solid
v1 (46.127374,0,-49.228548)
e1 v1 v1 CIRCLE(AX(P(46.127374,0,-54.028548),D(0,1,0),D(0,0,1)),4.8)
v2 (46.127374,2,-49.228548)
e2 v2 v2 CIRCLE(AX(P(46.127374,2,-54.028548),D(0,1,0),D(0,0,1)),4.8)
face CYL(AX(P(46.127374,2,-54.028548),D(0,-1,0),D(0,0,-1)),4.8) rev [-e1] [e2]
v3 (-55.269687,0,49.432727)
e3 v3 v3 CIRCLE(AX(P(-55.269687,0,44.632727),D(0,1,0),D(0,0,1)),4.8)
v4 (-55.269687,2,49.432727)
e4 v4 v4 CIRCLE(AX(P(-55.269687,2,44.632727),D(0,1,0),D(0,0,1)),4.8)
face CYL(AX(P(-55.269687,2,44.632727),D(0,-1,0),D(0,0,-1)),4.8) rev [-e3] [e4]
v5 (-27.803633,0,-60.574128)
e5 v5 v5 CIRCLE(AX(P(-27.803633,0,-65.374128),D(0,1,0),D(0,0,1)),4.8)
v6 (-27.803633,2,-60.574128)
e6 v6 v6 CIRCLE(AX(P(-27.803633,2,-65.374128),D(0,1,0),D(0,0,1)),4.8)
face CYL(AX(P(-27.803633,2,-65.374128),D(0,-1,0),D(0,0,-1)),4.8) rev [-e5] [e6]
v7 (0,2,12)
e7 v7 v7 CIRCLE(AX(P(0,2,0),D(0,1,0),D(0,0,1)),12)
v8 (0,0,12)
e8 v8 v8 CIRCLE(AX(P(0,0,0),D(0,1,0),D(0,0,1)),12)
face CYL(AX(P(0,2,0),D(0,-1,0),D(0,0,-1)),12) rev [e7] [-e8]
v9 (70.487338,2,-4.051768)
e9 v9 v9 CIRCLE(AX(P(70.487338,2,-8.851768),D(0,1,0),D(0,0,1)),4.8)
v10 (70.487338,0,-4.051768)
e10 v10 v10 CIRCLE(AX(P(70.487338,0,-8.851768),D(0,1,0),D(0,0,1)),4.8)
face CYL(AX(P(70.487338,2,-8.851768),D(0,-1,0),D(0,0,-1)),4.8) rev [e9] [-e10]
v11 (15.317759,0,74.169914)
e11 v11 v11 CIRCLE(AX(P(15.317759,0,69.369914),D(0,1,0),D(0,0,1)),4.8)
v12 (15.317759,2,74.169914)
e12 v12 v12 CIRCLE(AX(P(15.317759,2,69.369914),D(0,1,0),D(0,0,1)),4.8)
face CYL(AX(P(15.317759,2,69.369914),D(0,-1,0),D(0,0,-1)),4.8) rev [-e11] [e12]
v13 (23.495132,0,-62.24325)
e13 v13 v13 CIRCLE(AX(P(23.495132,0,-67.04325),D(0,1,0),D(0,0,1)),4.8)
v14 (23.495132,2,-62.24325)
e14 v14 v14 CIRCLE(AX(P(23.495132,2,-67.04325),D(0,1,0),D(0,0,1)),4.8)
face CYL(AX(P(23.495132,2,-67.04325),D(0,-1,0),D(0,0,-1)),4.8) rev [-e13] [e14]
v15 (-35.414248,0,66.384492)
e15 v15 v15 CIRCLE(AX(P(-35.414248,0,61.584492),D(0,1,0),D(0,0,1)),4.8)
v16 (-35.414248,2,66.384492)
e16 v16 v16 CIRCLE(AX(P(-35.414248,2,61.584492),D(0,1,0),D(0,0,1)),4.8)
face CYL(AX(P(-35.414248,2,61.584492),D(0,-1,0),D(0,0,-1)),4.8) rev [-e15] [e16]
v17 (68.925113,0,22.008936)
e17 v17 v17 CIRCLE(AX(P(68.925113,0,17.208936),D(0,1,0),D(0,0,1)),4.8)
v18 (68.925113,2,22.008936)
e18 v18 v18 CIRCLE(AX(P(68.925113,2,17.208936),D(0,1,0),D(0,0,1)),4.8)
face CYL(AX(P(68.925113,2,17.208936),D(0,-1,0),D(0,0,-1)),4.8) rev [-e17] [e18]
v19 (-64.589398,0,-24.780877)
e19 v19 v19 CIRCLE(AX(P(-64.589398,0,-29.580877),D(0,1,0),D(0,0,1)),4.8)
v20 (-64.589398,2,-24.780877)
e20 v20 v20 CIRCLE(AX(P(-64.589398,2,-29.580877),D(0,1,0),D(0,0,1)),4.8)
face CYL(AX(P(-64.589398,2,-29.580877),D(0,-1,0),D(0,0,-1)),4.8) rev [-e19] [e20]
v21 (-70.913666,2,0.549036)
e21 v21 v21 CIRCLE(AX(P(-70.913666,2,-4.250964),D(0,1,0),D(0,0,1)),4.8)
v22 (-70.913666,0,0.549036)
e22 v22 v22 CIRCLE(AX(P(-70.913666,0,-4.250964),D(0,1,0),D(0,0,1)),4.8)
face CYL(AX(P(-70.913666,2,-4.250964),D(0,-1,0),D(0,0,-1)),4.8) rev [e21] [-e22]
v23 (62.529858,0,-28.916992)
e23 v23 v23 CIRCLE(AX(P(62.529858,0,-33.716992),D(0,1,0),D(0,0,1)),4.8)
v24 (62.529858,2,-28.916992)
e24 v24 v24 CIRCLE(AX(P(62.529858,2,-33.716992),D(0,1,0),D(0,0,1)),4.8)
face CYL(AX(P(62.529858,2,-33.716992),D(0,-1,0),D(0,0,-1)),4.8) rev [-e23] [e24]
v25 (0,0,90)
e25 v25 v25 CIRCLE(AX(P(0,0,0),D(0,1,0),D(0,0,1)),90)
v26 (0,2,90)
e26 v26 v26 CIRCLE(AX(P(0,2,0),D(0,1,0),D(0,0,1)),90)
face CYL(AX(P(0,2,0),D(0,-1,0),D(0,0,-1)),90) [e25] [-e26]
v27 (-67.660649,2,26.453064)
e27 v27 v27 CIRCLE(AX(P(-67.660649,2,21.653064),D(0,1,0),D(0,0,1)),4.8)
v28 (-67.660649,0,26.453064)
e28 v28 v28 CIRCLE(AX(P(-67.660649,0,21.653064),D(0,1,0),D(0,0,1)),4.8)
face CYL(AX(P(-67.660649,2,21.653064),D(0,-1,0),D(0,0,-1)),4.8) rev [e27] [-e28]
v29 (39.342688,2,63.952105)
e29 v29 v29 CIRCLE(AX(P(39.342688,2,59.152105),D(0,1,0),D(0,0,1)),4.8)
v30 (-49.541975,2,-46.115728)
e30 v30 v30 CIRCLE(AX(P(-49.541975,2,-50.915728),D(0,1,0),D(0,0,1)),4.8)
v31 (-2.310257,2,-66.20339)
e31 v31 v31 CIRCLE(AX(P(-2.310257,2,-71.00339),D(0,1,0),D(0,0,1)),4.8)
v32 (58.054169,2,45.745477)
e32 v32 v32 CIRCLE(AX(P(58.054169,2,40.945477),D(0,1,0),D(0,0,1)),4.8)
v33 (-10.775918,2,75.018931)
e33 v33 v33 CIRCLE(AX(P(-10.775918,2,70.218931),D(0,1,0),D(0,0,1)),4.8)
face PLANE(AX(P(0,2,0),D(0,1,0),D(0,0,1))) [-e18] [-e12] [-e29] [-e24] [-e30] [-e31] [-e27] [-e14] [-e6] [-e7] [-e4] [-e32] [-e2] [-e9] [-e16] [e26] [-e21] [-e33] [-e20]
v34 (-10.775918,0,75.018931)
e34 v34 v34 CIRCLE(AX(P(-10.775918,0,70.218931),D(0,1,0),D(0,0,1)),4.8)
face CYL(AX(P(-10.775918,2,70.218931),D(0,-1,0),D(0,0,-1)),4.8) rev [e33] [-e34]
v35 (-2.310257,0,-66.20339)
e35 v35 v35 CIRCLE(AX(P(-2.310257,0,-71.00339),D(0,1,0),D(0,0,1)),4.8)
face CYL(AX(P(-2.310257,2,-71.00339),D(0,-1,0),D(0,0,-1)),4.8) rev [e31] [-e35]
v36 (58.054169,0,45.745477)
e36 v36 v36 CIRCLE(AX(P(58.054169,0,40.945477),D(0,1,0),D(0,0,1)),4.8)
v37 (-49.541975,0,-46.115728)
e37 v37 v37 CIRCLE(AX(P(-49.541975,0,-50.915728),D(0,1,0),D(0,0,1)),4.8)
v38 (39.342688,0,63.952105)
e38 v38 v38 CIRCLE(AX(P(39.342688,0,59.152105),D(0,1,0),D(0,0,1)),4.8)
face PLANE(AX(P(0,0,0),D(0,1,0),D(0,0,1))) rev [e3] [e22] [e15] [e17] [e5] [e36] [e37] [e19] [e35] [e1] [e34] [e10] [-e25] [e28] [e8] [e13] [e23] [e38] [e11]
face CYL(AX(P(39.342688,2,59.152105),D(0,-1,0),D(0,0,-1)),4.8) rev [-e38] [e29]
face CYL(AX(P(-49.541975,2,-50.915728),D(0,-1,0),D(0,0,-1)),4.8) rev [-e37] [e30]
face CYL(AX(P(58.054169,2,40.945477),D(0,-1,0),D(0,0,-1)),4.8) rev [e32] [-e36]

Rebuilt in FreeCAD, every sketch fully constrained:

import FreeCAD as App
import Part
import Sketcher
from FreeCAD import Vector
Q = App.Units.Quantity

doc = App.newDocument("Part")
body = doc.addObject("PartDesign::Body", "Body")

# Sketch on XZ plane
sketch1 = body.newObject("Sketcher::SketchObject", "Sketch")
sketch1.AttachmentSupport = (doc.getObject("XZ_Plane"), [""])
sketch1.MapMode = "FlatFace"
sketch1.addGeometry(Part.Circle(Vector(0, 0, 0), Vector(0, 0, 1), 90), False)
sketch1.addConstraint(Sketcher.Constraint("Coincident", 0, 3, -1, 1))
sketch1.addConstraint(Sketcher.Constraint("Diameter", 0, Q("180 mm")))
pad1 = body.newObject("PartDesign::Pad", "Pad")
pad1.Profile = sketch1
pad1.Length = 2
pad1.Reversed = True

# Sketch on XZ plane
sketch2 = body.newObject("Sketcher::SketchObject", "Sketch001")
sketch2.AttachmentSupport = (doc.getObject("XZ_Plane"), [""])
sketch2.MapMode = "FlatFace"
sketch2.addGeometry(Part.Circle(Vector(68.9, 17.2, 0), Vector(0, 0, 1), 4.8), False)
sketch2.addGeometry(Part.Circle(Vector(58.1, 40.9, 0), Vector(0, 0, 1), 4.8), False)
sketch2.addGeometry(Part.Circle(Vector(39.3, 59.2, 0), Vector(0, 0, 1), 4.8), False)
sketch2.addGeometry(Part.Circle(Vector(15.3, 69.4, 0), Vector(0, 0, 1), 4.8), False)
sketch2.addGeometry(Part.Circle(Vector(-10.8, 70.2, 0), Vector(0, 0, 1), 4.8), False)
sketch2.addGeometry(Part.Circle(Vector(-35.4, 61.6, 0), Vector(0, 0, 1), 4.8), False)
sketch2.addGeometry(Part.Circle(Vector(-55.3, 44.6, 0), Vector(0, 0, 1), 4.8), False)
sketch2.addGeometry(Part.Circle(Vector(-67.7, 21.7, 0), Vector(0, 0, 1), 4.8), False)
sketch2.addGeometry(Part.Circle(Vector(-70.9, -4.3, 0), Vector(0, 0, 1), 4.8), False)
sketch2.addGeometry(Part.Circle(Vector(-64.6, -29.6, 0), Vector(0, 0, 1), 4.8), False)
sketch2.addGeometry(Part.Circle(Vector(-49.5, -50.9, 0), Vector(0, 0, 1), 4.8), False)
sketch2.addGeometry(Part.Circle(Vector(-27.8, -65.4, 0), Vector(0, 0, 1), 4.8), False)
sketch2.addGeometry(Part.Circle(Vector(-2.3, -71, 0), Vector(0, 0, 1), 4.8), False)
sketch2.addGeometry(Part.Circle(Vector(23.5, -67, 0), Vector(0, 0, 1), 4.8), False)
sketch2.addGeometry(Part.Circle(Vector(46.1, -54, 0), Vector(0, 0, 1), 4.8), False)
sketch2.addGeometry(Part.Circle(Vector(62.5, -33.7, 0), Vector(0, 0, 1), 4.8), False)
sketch2.addGeometry(Part.Circle(Vector(70.5, -8.9, 0), Vector(0, 0, 1), 4.8), False)
sketch2.addGeometry(Part.Circle(Vector(0, 0, 0), Vector(0, 0, 1), 12), False)
sketch2.addConstraint(Sketcher.Constraint("Coincident", 17, 3, -1, 1))
sketch2.addConstraint(Sketcher.Constraint("Equal", 0, 1))
sketch2.addConstraint(Sketcher.Constraint("Equal", 1, 2))
sketch2.addConstraint(Sketcher.Constraint("Equal", 2, 3))
sketch2.addConstraint(Sketcher.Constraint("Equal", 3, 4))
sketch2.addConstraint(Sketcher.Constraint("Equal", 4, 5))
sketch2.addConstraint(Sketcher.Constraint("Equal", 5, 6))
sketch2.addConstraint(Sketcher.Constraint("Equal", 6, 7))
sketch2.addConstraint(Sketcher.Constraint("Equal", 7, 8))
sketch2.addConstraint(Sketcher.Constraint("Equal", 8, 9))
sketch2.addConstraint(Sketcher.Constraint("Equal", 9, 10))
sketch2.addConstraint(Sketcher.Constraint("Equal", 10, 11))
sketch2.addConstraint(Sketcher.Constraint("Equal", 11, 12))
sketch2.addConstraint(Sketcher.Constraint("Equal", 12, 13))
sketch2.addConstraint(Sketcher.Constraint("Equal", 13, 14))
sketch2.addConstraint(Sketcher.Constraint("Equal", 14, 15))
sketch2.addConstraint(Sketcher.Constraint("Equal", 15, 16))
sketch2.addConstraint(Sketcher.Constraint("Diameter", 17, Q("24 mm")))
sketch2.addConstraint(Sketcher.Constraint("Diameter", 0, Q("9.6 mm")))
sketch2.addConstraint(Sketcher.Constraint("DistanceX", 9, 3, -1, 1, Q("64.589398 mm")))
sketch2.addConstraint(Sketcher.Constraint("DistanceX", 7, 3, 5, 3, Q("32.246401 mm")))
sketch2.addConstraint(Sketcher.Constraint("DistanceY", 11, 3, 10, 3, Q("14.4584 mm")))
sketch2.addConstraint(Sketcher.Constraint("DistanceY", 13, 3, 14, 3, Q("13.014702 mm")))
sketch2.addConstraint(Sketcher.Constraint("DistanceY", 12, 3, 15, 3, Q("37.286398 mm")))
sketch2.addConstraint(Sketcher.Constraint("DistanceX", -1, 1, 1, 3, Q("58.054169 mm")))
sketch2.addConstraint(Sketcher.Constraint("DistanceX", -1, 1, 2, 3, Q("39.342688 mm")))
sketch2.addConstraint(Sketcher.Constraint("DistanceX", -1, 1, 3, 3, Q("15.317759 mm")))
sketch2.addConstraint(Sketcher.Constraint("DistanceX", 4, 3, -1, 1, Q("10.775918 mm")))
sketch2.addConstraint(Sketcher.Constraint("DistanceY", -1, 1, 4, 3, Q("70.218931 mm")))
sketch2.addConstraint(Sketcher.Constraint("DistanceX", 5, 3, -1, 1, Q("35.414248 mm")))
sketch2.addConstraint(Sketcher.Constraint("DistanceY", 10, 3, -1, 1, Q("50.915728 mm")))
sketch2.addConstraint(Sketcher.Constraint("DistanceY", 12, 3, -1, 1, Q("71.00339 mm")))
sketch2.addConstraint(Sketcher.Constraint("DistanceY", 13, 3, -1, 1, Q("67.04325 mm")))
sketch2.addConstraint(Sketcher.Constraint("DistanceX", -1, 1, 15, 3, Q("62.529858 mm")))
sketch2.addConstraint(Sketcher.Constraint("DistanceX", -1, 1, 16, 3, Q("70.487338 mm")))
sketch2.addConstraint(Sketcher.Constraint("DistanceY", 16, 3, -1, 1, Q("8.851768 mm")))
sketch2.addConstraint(Sketcher.Constraint("DistanceY", 0, 3, 1, 3, Q("23.736542 mm")))
sketch2.addConstraint(Sketcher.Constraint("DistanceY", 1, 3, 2, 3, Q("18.206628 mm")))
sketch2.addConstraint(Sketcher.Constraint("DistanceY", 2, 3, 3, 3, Q("10.217808 mm")))
sketch2.addConstraint(Sketcher.Constraint("DistanceX", 4, 3, 0, 3, Q("79.701031 mm")))
sketch2.addConstraint(Sketcher.Constraint("DistanceY", 5, 3, 4, 3, Q("8.634438 mm")))
sketch2.addConstraint(Sketcher.Constraint("DistanceY", 5, 3, 3, 3, Q("7.785421 mm")))
sketch2.addConstraint(Sketcher.Constraint("DistanceX", 6, 3, 5, 3, Q("19.855439 mm")))
sketch2.addConstraint(Sketcher.Constraint("DistanceY", 6, 3, 2, 3, Q("14.519378 mm")))
sketch2.addConstraint(Sketcher.Constraint("DistanceY", 7, 3, 3, 3, Q("47.716849 mm")))
sketch2.addConstraint(Sketcher.Constraint("DistanceY", 8, 3, 7, 3, Q("25.904029 mm")))
sketch2.addConstraint(Sketcher.Constraint("DistanceX", 8, 3, 6, 3, Q("15.643978 mm")))
sketch2.addConstraint(Sketcher.Constraint("DistanceY", 9, 3, 7, 3, Q("51.233941 mm")))
sketch2.addConstraint(Sketcher.Constraint("DistanceX", 8, 3, 10, 3, Q("21.371691 mm")))
sketch2.addConstraint(Sketcher.Constraint("DistanceX", 10, 3, 11, 3, Q("21.738342 mm")))
sketch2.addConstraint(Sketcher.Constraint("DistanceX", 10, 3, 12, 3, Q("47.231718 mm")))
sketch2.addConstraint(Sketcher.Constraint("DistanceX", 12, 3, 13, 3, Q("25.805389 mm")))
sketch2.addConstraint(Sketcher.Constraint("DistanceX", 13, 3, 14, 3, Q("22.632242 mm")))
pocket1 = body.newObject("PartDesign::Pocket", "Pocket")
pocket1.Profile = sketch2
pocket1.Type = "ThroughAll"

doc.recompute()
